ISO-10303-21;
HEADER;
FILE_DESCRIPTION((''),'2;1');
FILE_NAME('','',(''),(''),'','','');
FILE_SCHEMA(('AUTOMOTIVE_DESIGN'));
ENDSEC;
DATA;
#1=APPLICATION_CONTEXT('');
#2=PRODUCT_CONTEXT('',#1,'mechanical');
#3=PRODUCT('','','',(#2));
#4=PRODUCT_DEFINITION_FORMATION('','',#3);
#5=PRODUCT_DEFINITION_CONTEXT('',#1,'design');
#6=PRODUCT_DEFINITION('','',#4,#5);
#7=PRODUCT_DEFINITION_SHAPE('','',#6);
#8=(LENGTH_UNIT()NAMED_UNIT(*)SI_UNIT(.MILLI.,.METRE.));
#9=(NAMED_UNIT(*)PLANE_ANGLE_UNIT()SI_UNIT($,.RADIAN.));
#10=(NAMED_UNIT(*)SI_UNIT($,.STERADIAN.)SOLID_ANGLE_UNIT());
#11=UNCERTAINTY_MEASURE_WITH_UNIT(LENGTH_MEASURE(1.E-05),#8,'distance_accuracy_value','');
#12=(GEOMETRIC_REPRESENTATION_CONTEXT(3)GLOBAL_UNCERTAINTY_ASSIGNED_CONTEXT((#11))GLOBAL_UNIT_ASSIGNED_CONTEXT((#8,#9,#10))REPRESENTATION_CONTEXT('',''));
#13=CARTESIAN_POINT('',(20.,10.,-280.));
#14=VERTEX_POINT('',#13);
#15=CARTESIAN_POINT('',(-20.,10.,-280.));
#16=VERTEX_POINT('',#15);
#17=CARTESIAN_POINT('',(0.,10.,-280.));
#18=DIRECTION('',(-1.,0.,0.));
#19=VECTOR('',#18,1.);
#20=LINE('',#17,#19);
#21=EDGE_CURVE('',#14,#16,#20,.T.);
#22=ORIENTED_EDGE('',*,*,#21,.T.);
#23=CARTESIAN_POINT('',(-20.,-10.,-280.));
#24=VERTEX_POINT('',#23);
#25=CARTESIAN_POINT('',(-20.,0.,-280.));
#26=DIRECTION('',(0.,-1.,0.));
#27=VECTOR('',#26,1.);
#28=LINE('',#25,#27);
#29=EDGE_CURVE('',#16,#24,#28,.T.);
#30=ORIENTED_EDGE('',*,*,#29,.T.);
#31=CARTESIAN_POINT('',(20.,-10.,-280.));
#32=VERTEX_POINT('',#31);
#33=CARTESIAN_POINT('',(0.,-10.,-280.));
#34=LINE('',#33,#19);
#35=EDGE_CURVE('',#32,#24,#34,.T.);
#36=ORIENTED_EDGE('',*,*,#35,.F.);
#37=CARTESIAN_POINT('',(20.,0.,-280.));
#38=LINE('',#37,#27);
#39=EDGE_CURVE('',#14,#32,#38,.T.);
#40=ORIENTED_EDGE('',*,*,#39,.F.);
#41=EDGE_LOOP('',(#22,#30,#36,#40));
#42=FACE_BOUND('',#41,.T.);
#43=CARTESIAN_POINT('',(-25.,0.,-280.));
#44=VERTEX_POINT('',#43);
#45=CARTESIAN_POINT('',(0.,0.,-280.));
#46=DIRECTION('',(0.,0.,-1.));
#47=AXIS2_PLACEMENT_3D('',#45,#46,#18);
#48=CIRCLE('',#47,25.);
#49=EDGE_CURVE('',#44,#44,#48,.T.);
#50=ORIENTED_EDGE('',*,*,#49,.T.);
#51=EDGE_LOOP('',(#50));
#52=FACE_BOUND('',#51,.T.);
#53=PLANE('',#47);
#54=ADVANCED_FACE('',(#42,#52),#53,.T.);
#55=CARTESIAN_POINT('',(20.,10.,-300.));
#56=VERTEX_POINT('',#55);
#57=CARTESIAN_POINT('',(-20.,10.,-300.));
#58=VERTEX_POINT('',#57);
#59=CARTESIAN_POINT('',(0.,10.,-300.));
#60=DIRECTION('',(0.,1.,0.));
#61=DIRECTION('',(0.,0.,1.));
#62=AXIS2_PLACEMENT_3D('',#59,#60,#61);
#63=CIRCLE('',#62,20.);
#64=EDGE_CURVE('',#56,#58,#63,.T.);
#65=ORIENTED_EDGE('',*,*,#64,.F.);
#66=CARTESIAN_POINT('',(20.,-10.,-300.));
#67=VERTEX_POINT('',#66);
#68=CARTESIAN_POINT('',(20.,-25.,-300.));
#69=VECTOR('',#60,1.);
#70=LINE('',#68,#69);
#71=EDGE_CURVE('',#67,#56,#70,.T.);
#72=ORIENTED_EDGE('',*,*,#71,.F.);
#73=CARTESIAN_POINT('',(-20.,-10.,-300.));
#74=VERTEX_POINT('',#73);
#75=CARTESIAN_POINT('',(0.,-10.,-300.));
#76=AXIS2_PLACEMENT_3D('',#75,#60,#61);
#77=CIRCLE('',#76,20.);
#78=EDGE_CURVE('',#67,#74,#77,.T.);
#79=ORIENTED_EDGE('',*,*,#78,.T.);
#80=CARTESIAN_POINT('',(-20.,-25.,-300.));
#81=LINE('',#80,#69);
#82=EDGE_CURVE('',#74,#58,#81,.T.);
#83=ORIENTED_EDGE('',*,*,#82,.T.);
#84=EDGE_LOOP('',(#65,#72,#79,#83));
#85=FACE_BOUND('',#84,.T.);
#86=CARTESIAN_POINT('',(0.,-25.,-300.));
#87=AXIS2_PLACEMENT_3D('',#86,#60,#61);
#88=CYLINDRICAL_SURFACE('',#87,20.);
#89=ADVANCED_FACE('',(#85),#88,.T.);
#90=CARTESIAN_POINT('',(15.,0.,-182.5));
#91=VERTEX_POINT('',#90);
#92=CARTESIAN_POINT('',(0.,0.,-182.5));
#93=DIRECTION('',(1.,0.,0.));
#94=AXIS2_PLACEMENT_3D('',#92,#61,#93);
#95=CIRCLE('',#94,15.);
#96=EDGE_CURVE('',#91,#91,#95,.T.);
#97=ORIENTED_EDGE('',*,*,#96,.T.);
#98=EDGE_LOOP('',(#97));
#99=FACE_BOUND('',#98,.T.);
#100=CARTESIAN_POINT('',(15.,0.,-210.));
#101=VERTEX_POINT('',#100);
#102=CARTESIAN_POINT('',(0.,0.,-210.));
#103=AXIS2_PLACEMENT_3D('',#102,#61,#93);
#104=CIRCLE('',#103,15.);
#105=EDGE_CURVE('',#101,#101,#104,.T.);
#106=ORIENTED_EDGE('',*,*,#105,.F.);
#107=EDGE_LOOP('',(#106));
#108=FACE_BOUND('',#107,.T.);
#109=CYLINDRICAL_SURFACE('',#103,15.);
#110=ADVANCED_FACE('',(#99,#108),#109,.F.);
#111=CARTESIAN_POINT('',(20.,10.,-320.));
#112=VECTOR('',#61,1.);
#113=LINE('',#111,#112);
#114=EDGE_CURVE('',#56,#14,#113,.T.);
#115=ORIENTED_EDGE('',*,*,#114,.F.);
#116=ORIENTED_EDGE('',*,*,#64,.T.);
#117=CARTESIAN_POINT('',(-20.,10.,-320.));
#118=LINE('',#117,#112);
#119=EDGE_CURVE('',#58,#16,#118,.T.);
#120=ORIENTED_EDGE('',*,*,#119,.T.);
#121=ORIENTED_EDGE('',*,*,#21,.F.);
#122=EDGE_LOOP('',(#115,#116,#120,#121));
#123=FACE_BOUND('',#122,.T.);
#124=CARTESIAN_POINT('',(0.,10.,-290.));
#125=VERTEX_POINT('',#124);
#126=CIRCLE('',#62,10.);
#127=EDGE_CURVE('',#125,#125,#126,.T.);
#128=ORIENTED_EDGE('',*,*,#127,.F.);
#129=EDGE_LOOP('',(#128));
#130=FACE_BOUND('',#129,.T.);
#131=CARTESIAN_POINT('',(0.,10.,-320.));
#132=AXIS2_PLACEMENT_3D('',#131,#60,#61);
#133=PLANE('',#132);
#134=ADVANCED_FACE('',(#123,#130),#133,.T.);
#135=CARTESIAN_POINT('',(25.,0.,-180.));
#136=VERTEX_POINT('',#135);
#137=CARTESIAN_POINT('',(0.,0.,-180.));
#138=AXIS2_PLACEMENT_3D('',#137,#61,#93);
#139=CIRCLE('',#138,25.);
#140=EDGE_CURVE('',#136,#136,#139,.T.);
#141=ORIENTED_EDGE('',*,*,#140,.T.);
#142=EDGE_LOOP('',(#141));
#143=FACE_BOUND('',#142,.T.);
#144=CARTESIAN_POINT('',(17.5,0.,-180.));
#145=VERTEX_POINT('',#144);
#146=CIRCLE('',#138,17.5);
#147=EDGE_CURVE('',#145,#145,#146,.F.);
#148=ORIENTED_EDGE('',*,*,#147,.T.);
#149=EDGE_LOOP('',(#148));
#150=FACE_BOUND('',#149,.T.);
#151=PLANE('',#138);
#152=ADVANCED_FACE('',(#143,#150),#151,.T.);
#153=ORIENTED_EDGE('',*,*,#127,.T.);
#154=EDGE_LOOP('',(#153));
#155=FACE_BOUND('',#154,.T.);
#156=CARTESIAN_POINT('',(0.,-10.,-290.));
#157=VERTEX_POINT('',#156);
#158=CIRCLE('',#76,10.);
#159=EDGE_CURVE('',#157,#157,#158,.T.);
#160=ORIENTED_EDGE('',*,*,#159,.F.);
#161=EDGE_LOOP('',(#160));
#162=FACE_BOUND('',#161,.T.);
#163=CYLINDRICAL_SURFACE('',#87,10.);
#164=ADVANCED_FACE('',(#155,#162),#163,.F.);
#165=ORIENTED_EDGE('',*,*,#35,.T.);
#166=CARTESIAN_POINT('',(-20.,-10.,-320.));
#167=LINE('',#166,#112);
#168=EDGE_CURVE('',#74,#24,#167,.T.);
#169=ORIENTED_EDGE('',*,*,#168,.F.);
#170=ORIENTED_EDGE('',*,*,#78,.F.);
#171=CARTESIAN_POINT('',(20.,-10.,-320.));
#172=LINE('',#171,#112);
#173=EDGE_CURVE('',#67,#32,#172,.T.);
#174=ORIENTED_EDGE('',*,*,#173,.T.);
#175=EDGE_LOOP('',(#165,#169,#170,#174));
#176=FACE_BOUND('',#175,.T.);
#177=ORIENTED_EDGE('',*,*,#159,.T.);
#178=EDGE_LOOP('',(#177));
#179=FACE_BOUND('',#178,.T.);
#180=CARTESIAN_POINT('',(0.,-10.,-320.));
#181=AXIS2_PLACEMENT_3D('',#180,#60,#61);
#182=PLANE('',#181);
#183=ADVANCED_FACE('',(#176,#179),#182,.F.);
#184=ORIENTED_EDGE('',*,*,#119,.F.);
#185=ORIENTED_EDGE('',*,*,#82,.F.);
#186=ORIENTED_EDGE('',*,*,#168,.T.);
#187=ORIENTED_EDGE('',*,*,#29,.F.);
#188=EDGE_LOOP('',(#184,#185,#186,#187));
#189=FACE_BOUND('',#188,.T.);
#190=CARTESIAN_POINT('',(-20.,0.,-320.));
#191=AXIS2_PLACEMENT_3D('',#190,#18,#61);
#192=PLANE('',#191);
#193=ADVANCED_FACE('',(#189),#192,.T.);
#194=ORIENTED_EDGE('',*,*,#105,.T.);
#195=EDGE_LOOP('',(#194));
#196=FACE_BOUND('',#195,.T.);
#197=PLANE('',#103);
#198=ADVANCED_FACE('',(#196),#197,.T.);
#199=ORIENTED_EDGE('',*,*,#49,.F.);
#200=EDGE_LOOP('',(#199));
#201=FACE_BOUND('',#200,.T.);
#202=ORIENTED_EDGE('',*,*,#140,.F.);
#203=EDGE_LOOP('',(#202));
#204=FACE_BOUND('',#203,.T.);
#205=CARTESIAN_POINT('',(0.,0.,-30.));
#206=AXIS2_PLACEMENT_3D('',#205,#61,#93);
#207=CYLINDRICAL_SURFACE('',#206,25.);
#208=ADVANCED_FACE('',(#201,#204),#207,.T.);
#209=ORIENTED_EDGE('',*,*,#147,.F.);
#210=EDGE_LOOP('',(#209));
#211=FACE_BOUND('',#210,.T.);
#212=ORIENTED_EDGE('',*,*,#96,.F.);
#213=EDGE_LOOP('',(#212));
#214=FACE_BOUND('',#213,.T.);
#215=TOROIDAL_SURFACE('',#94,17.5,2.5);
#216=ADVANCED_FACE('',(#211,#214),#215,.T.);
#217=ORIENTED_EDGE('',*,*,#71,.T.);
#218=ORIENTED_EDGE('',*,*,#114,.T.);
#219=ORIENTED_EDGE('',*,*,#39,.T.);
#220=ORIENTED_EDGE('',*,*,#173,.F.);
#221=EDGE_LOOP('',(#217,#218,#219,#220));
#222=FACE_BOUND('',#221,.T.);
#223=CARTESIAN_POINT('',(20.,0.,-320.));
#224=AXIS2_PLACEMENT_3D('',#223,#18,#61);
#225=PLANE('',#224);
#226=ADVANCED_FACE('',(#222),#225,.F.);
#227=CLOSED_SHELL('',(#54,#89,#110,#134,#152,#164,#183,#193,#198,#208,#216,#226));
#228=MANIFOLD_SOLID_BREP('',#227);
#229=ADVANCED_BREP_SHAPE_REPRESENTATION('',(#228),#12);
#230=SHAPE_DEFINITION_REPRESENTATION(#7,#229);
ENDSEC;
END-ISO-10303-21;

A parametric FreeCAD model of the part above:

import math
import FreeCAD as App
import Part
import Sketcher
Q = App.Units.Quantity


def edges_at(feature, points):
    """Names of the edges that pass closest to the given points."""
    edges = feature.Shape.Edges
    near = lambda p: min(range(len(edges)), key=lambda i: edges[i].distToShape(Part.Vertex(*p))[0])
    return sorted({f"Edge{near(p) + 1}" for p in points})


def add_polygon(sketch, points):
    """Adds a closed chain of lines whose ends are joined by coincident constraints."""
    first, n = sketch.GeometryCount, len(points)
    for a, b in zip(points, points[1:] + points[:1]):
        sketch.addGeometry(Part.LineSegment(App.Vector(*a, 0), App.Vector(*b, 0)), False)
    for i in range(n):
        sketch.addConstraint(Sketcher.Constraint("Coincident", first + i, 2, first + (i + 1) % n, 1))

doc = App.newDocument("Part")
body = doc.addObject("PartDesign::Body", "Body")

sketch1 = body.newObject("Sketcher::SketchObject", "Sketch")
sketch1.AttachmentSupport = (doc.getObject("XY_Plane"), [""])
sketch1.MapMode = "FlatFace"
sketch1.addGeometry(Part.Circle(App.Vector(0, 0, 0), App.Vector(0, 0, 1), 25), False)
sketch1.addConstraint([
    Sketcher.Constraint("Coincident", 0, 3, -1, 1),
    Sketcher.Constraint("Diameter", 0, Q("50 mm")),
])
pad1 = body.newObject("PartDesign::Pad", "Pad")
pad1.Profile = sketch1
pad1.Length = 30
pad1.Reversed = True

sketch2 = body.newObject("Sketcher::SketchObject", "Sketch001")
sketch2.AttachmentSupport = (doc.getObject("XY_Plane"), [""])
sketch2.MapMode = "FlatFace"
sketch2.AttachmentOffset = App.Placement(App.Vector(0, 0, -30), App.Rotation())
sketch2.addGeometry(Part.Circle(App.Vector(0, 0, 0), App.Vector(0, 0, 1), 25), False)
sketch2.addConstraint([
    Sketcher.Constraint("Coincident", 0, 3, -1, 1),
    Sketcher.Constraint("Diameter", 0, Q("50 mm")),
])
pad2 = body.newObject("PartDesign::Pad", "Pad001")
pad2.Profile = sketch2
pad2.Length = 250
pad2.Reversed = True

sketch3 = body.newObject("Sketcher::SketchObject", "Sketch002")
sketch3.AttachmentSupport = (doc.getObject("XY_Plane"), [""])
sketch3.MapMode = "FlatFace"
sketch3.AttachmentOffset = App.Placement(App.Vector(0, 0, -280), App.Rotation())
add_polygon(sketch3, [(20, -10), (-20, -10), (-20, 10), (20, 10)])
sketch3.addConstraint([
    Sketcher.Constraint("Horizontal", 0),
    Sketcher.Constraint("Vertical", 1),
    Sketcher.Constraint("Horizontal", 2),
    Sketcher.Constraint("Vertical", 3),
    Sketcher.Constraint("Symmetric", 0, 2, 2, 2, -1, 1),
    Sketcher.Constraint("DistanceX", 0, 2, 0, 1, Q("40 mm")),
    Sketcher.Constraint("DistanceY", 1, 1, 1, 2, Q("20 mm")),
])
pad3 = body.newObject("PartDesign::Pad", "Pad002")
pad3.Profile = sketch3
pad3.Length = 40
pad3.Reversed = True

sketch4 = body.newObject("Sketcher::SketchObject", "Sketch003")
sketch4.AttachmentSupport = (doc.getObject("XZ_Plane"), [""])
sketch4.MapMode = "FlatFace"
sketch4.AttachmentOffset = App.Placement(App.Vector(0, 0, -10), App.Rotation())
sketch4.addGeometry([
    Part.ArcOfCircle(Part.Circle(App.Vector(0, -300, 0), App.Vector(0, 0, 1), 20), math.radians(180), math.radians(270)),
    Part.LineSegment(App.Vector(0, -320, 0), App.Vector(-20, -320, 0)),
    Part.LineSegment(App.Vector(-20, -320, 0), App.Vector(-20, -300, 0)),
    Part.LineSegment(App.Vector(20, -320, 0), App.Vector(0, -320, 0)),
    Part.ArcOfCircle(Part.Circle(App.Vector(0, -300, 0), App.Vector(0, 0, 1), 20), math.radians(-90), math.radians(0)),
    Part.LineSegment(App.Vector(20, -300, 0), App.Vector(20, -320, 0)),
], False)
sketch4.addConstraint([
    Sketcher.Constraint("Tangent", 0, 2, 1, 1),
    Sketcher.Constraint("Coincident", 1, 2, 2, 1),
    Sketcher.Constraint("Tangent", 2, 2, 0, 1),
    Sketcher.Constraint("Tangent", 3, 2, 4, 1),
    Sketcher.Constraint("Tangent", 4, 2, 5, 1),
    Sketcher.Constraint("Coincident", 5, 2, 3, 1),
    Sketcher.Constraint("Horizontal", 1),
    Sketcher.Constraint("Vertical", 2),
    Sketcher.Constraint("Horizontal", 3),
    Sketcher.Constraint("Vertical", 5),
    Sketcher.Constraint("Coincident", 4, 3, 0, 3),
    Sketcher.Constraint("Equal", 0, 4),
    Sketcher.Constraint("PointOnObject", 0, 3, -2),
    Sketcher.Constraint("Radius", 0, Q("20 mm")),
    Sketcher.Constraint("DistanceY", 0, 3, -1, 1, Q("300 mm")),
])
pocket1 = body.newObject("PartDesign::Pocket", "Pocket")
pocket1.Profile = sketch4
pocket1.Type = "ThroughAll"
pocket1.Midplane = True

sketch5 = body.newObject("Sketcher::SketchObject", "Sketch004")
sketch5.AttachmentSupport = (doc.getObject("XZ_Plane"), [""])
sketch5.MapMode = "FlatFace"
sketch5.AttachmentOffset = App.Placement(App.Vector(0, 0, -10), App.Rotation())
sketch5.addGeometry(Part.Circle(App.Vector(0, -300, 0), App.Vector(0, 0, 1), 10), False)
sketch5.addConstraint([
    Sketcher.Constraint("PointOnObject", 0, 3, -2),
    Sketcher.Constraint("Diameter", 0, Q("20 mm")),
    Sketcher.Constraint("DistanceY", 0, 3, -1, 1, Q("300 mm")),
])
pocket2 = body.newObject("PartDesign::Pocket", "Pocket001")
pocket2.Profile = sketch5
pocket2.Type = "ThroughAll"
pocket2.Midplane = True

sketch6 = body.newObject("Sketcher::SketchObject", "Sketch005")
sketch6.AttachmentSupport = (doc.getObject("XY_Plane"), [""])
sketch6.MapMode = "FlatFace"
sketch6.addGeometry(Part.Circle(App.Vector(0, 0, 0), App.Vector(0, 0, 1), 25), False)
sketch6.addConstraint([
    Sketcher.Constraint("Coincident", 0, 3, -1, 1),
    Sketcher.Constraint("Diameter", 0, Q("50 mm")),
])
pocket3 = body.newObject("PartDesign::Pocket", "Pocket002")
pocket3.Profile = sketch6
pocket3.Length = 180

sketch7 = body.newObject("Sketcher::SketchObject", "Sketch006")
sketch7.AttachmentSupport = (doc.getObject("XY_Plane"), [""])
sketch7.MapMode = "FlatFace"
sketch7.AttachmentOffset = App.Placement(App.Vector(0, 0, -180), App.Rotation())
sketch7.addGeometry(Part.Circle(App.Vector(0, 0, 0), App.Vector(0, 0, 1), 15), False)
sketch7.addConstraint([
    Sketcher.Constraint("Coincident", 0, 3, -1, 1),
    Sketcher.Constraint("Diameter", 0, Q("30 mm")),
])
pocket4 = body.newObject("PartDesign::Pocket", "Pocket003")
pocket4.Profile = sketch7
pocket4.Length = 30
doc.recompute()

fillet = body.newObject("PartDesign::Fillet", "Fillet")
fillet.Base = (pocket4, edges_at(pocket4, [(-15, 0, -180)]))
fillet.Radius = 2.5

doc.recompute()
